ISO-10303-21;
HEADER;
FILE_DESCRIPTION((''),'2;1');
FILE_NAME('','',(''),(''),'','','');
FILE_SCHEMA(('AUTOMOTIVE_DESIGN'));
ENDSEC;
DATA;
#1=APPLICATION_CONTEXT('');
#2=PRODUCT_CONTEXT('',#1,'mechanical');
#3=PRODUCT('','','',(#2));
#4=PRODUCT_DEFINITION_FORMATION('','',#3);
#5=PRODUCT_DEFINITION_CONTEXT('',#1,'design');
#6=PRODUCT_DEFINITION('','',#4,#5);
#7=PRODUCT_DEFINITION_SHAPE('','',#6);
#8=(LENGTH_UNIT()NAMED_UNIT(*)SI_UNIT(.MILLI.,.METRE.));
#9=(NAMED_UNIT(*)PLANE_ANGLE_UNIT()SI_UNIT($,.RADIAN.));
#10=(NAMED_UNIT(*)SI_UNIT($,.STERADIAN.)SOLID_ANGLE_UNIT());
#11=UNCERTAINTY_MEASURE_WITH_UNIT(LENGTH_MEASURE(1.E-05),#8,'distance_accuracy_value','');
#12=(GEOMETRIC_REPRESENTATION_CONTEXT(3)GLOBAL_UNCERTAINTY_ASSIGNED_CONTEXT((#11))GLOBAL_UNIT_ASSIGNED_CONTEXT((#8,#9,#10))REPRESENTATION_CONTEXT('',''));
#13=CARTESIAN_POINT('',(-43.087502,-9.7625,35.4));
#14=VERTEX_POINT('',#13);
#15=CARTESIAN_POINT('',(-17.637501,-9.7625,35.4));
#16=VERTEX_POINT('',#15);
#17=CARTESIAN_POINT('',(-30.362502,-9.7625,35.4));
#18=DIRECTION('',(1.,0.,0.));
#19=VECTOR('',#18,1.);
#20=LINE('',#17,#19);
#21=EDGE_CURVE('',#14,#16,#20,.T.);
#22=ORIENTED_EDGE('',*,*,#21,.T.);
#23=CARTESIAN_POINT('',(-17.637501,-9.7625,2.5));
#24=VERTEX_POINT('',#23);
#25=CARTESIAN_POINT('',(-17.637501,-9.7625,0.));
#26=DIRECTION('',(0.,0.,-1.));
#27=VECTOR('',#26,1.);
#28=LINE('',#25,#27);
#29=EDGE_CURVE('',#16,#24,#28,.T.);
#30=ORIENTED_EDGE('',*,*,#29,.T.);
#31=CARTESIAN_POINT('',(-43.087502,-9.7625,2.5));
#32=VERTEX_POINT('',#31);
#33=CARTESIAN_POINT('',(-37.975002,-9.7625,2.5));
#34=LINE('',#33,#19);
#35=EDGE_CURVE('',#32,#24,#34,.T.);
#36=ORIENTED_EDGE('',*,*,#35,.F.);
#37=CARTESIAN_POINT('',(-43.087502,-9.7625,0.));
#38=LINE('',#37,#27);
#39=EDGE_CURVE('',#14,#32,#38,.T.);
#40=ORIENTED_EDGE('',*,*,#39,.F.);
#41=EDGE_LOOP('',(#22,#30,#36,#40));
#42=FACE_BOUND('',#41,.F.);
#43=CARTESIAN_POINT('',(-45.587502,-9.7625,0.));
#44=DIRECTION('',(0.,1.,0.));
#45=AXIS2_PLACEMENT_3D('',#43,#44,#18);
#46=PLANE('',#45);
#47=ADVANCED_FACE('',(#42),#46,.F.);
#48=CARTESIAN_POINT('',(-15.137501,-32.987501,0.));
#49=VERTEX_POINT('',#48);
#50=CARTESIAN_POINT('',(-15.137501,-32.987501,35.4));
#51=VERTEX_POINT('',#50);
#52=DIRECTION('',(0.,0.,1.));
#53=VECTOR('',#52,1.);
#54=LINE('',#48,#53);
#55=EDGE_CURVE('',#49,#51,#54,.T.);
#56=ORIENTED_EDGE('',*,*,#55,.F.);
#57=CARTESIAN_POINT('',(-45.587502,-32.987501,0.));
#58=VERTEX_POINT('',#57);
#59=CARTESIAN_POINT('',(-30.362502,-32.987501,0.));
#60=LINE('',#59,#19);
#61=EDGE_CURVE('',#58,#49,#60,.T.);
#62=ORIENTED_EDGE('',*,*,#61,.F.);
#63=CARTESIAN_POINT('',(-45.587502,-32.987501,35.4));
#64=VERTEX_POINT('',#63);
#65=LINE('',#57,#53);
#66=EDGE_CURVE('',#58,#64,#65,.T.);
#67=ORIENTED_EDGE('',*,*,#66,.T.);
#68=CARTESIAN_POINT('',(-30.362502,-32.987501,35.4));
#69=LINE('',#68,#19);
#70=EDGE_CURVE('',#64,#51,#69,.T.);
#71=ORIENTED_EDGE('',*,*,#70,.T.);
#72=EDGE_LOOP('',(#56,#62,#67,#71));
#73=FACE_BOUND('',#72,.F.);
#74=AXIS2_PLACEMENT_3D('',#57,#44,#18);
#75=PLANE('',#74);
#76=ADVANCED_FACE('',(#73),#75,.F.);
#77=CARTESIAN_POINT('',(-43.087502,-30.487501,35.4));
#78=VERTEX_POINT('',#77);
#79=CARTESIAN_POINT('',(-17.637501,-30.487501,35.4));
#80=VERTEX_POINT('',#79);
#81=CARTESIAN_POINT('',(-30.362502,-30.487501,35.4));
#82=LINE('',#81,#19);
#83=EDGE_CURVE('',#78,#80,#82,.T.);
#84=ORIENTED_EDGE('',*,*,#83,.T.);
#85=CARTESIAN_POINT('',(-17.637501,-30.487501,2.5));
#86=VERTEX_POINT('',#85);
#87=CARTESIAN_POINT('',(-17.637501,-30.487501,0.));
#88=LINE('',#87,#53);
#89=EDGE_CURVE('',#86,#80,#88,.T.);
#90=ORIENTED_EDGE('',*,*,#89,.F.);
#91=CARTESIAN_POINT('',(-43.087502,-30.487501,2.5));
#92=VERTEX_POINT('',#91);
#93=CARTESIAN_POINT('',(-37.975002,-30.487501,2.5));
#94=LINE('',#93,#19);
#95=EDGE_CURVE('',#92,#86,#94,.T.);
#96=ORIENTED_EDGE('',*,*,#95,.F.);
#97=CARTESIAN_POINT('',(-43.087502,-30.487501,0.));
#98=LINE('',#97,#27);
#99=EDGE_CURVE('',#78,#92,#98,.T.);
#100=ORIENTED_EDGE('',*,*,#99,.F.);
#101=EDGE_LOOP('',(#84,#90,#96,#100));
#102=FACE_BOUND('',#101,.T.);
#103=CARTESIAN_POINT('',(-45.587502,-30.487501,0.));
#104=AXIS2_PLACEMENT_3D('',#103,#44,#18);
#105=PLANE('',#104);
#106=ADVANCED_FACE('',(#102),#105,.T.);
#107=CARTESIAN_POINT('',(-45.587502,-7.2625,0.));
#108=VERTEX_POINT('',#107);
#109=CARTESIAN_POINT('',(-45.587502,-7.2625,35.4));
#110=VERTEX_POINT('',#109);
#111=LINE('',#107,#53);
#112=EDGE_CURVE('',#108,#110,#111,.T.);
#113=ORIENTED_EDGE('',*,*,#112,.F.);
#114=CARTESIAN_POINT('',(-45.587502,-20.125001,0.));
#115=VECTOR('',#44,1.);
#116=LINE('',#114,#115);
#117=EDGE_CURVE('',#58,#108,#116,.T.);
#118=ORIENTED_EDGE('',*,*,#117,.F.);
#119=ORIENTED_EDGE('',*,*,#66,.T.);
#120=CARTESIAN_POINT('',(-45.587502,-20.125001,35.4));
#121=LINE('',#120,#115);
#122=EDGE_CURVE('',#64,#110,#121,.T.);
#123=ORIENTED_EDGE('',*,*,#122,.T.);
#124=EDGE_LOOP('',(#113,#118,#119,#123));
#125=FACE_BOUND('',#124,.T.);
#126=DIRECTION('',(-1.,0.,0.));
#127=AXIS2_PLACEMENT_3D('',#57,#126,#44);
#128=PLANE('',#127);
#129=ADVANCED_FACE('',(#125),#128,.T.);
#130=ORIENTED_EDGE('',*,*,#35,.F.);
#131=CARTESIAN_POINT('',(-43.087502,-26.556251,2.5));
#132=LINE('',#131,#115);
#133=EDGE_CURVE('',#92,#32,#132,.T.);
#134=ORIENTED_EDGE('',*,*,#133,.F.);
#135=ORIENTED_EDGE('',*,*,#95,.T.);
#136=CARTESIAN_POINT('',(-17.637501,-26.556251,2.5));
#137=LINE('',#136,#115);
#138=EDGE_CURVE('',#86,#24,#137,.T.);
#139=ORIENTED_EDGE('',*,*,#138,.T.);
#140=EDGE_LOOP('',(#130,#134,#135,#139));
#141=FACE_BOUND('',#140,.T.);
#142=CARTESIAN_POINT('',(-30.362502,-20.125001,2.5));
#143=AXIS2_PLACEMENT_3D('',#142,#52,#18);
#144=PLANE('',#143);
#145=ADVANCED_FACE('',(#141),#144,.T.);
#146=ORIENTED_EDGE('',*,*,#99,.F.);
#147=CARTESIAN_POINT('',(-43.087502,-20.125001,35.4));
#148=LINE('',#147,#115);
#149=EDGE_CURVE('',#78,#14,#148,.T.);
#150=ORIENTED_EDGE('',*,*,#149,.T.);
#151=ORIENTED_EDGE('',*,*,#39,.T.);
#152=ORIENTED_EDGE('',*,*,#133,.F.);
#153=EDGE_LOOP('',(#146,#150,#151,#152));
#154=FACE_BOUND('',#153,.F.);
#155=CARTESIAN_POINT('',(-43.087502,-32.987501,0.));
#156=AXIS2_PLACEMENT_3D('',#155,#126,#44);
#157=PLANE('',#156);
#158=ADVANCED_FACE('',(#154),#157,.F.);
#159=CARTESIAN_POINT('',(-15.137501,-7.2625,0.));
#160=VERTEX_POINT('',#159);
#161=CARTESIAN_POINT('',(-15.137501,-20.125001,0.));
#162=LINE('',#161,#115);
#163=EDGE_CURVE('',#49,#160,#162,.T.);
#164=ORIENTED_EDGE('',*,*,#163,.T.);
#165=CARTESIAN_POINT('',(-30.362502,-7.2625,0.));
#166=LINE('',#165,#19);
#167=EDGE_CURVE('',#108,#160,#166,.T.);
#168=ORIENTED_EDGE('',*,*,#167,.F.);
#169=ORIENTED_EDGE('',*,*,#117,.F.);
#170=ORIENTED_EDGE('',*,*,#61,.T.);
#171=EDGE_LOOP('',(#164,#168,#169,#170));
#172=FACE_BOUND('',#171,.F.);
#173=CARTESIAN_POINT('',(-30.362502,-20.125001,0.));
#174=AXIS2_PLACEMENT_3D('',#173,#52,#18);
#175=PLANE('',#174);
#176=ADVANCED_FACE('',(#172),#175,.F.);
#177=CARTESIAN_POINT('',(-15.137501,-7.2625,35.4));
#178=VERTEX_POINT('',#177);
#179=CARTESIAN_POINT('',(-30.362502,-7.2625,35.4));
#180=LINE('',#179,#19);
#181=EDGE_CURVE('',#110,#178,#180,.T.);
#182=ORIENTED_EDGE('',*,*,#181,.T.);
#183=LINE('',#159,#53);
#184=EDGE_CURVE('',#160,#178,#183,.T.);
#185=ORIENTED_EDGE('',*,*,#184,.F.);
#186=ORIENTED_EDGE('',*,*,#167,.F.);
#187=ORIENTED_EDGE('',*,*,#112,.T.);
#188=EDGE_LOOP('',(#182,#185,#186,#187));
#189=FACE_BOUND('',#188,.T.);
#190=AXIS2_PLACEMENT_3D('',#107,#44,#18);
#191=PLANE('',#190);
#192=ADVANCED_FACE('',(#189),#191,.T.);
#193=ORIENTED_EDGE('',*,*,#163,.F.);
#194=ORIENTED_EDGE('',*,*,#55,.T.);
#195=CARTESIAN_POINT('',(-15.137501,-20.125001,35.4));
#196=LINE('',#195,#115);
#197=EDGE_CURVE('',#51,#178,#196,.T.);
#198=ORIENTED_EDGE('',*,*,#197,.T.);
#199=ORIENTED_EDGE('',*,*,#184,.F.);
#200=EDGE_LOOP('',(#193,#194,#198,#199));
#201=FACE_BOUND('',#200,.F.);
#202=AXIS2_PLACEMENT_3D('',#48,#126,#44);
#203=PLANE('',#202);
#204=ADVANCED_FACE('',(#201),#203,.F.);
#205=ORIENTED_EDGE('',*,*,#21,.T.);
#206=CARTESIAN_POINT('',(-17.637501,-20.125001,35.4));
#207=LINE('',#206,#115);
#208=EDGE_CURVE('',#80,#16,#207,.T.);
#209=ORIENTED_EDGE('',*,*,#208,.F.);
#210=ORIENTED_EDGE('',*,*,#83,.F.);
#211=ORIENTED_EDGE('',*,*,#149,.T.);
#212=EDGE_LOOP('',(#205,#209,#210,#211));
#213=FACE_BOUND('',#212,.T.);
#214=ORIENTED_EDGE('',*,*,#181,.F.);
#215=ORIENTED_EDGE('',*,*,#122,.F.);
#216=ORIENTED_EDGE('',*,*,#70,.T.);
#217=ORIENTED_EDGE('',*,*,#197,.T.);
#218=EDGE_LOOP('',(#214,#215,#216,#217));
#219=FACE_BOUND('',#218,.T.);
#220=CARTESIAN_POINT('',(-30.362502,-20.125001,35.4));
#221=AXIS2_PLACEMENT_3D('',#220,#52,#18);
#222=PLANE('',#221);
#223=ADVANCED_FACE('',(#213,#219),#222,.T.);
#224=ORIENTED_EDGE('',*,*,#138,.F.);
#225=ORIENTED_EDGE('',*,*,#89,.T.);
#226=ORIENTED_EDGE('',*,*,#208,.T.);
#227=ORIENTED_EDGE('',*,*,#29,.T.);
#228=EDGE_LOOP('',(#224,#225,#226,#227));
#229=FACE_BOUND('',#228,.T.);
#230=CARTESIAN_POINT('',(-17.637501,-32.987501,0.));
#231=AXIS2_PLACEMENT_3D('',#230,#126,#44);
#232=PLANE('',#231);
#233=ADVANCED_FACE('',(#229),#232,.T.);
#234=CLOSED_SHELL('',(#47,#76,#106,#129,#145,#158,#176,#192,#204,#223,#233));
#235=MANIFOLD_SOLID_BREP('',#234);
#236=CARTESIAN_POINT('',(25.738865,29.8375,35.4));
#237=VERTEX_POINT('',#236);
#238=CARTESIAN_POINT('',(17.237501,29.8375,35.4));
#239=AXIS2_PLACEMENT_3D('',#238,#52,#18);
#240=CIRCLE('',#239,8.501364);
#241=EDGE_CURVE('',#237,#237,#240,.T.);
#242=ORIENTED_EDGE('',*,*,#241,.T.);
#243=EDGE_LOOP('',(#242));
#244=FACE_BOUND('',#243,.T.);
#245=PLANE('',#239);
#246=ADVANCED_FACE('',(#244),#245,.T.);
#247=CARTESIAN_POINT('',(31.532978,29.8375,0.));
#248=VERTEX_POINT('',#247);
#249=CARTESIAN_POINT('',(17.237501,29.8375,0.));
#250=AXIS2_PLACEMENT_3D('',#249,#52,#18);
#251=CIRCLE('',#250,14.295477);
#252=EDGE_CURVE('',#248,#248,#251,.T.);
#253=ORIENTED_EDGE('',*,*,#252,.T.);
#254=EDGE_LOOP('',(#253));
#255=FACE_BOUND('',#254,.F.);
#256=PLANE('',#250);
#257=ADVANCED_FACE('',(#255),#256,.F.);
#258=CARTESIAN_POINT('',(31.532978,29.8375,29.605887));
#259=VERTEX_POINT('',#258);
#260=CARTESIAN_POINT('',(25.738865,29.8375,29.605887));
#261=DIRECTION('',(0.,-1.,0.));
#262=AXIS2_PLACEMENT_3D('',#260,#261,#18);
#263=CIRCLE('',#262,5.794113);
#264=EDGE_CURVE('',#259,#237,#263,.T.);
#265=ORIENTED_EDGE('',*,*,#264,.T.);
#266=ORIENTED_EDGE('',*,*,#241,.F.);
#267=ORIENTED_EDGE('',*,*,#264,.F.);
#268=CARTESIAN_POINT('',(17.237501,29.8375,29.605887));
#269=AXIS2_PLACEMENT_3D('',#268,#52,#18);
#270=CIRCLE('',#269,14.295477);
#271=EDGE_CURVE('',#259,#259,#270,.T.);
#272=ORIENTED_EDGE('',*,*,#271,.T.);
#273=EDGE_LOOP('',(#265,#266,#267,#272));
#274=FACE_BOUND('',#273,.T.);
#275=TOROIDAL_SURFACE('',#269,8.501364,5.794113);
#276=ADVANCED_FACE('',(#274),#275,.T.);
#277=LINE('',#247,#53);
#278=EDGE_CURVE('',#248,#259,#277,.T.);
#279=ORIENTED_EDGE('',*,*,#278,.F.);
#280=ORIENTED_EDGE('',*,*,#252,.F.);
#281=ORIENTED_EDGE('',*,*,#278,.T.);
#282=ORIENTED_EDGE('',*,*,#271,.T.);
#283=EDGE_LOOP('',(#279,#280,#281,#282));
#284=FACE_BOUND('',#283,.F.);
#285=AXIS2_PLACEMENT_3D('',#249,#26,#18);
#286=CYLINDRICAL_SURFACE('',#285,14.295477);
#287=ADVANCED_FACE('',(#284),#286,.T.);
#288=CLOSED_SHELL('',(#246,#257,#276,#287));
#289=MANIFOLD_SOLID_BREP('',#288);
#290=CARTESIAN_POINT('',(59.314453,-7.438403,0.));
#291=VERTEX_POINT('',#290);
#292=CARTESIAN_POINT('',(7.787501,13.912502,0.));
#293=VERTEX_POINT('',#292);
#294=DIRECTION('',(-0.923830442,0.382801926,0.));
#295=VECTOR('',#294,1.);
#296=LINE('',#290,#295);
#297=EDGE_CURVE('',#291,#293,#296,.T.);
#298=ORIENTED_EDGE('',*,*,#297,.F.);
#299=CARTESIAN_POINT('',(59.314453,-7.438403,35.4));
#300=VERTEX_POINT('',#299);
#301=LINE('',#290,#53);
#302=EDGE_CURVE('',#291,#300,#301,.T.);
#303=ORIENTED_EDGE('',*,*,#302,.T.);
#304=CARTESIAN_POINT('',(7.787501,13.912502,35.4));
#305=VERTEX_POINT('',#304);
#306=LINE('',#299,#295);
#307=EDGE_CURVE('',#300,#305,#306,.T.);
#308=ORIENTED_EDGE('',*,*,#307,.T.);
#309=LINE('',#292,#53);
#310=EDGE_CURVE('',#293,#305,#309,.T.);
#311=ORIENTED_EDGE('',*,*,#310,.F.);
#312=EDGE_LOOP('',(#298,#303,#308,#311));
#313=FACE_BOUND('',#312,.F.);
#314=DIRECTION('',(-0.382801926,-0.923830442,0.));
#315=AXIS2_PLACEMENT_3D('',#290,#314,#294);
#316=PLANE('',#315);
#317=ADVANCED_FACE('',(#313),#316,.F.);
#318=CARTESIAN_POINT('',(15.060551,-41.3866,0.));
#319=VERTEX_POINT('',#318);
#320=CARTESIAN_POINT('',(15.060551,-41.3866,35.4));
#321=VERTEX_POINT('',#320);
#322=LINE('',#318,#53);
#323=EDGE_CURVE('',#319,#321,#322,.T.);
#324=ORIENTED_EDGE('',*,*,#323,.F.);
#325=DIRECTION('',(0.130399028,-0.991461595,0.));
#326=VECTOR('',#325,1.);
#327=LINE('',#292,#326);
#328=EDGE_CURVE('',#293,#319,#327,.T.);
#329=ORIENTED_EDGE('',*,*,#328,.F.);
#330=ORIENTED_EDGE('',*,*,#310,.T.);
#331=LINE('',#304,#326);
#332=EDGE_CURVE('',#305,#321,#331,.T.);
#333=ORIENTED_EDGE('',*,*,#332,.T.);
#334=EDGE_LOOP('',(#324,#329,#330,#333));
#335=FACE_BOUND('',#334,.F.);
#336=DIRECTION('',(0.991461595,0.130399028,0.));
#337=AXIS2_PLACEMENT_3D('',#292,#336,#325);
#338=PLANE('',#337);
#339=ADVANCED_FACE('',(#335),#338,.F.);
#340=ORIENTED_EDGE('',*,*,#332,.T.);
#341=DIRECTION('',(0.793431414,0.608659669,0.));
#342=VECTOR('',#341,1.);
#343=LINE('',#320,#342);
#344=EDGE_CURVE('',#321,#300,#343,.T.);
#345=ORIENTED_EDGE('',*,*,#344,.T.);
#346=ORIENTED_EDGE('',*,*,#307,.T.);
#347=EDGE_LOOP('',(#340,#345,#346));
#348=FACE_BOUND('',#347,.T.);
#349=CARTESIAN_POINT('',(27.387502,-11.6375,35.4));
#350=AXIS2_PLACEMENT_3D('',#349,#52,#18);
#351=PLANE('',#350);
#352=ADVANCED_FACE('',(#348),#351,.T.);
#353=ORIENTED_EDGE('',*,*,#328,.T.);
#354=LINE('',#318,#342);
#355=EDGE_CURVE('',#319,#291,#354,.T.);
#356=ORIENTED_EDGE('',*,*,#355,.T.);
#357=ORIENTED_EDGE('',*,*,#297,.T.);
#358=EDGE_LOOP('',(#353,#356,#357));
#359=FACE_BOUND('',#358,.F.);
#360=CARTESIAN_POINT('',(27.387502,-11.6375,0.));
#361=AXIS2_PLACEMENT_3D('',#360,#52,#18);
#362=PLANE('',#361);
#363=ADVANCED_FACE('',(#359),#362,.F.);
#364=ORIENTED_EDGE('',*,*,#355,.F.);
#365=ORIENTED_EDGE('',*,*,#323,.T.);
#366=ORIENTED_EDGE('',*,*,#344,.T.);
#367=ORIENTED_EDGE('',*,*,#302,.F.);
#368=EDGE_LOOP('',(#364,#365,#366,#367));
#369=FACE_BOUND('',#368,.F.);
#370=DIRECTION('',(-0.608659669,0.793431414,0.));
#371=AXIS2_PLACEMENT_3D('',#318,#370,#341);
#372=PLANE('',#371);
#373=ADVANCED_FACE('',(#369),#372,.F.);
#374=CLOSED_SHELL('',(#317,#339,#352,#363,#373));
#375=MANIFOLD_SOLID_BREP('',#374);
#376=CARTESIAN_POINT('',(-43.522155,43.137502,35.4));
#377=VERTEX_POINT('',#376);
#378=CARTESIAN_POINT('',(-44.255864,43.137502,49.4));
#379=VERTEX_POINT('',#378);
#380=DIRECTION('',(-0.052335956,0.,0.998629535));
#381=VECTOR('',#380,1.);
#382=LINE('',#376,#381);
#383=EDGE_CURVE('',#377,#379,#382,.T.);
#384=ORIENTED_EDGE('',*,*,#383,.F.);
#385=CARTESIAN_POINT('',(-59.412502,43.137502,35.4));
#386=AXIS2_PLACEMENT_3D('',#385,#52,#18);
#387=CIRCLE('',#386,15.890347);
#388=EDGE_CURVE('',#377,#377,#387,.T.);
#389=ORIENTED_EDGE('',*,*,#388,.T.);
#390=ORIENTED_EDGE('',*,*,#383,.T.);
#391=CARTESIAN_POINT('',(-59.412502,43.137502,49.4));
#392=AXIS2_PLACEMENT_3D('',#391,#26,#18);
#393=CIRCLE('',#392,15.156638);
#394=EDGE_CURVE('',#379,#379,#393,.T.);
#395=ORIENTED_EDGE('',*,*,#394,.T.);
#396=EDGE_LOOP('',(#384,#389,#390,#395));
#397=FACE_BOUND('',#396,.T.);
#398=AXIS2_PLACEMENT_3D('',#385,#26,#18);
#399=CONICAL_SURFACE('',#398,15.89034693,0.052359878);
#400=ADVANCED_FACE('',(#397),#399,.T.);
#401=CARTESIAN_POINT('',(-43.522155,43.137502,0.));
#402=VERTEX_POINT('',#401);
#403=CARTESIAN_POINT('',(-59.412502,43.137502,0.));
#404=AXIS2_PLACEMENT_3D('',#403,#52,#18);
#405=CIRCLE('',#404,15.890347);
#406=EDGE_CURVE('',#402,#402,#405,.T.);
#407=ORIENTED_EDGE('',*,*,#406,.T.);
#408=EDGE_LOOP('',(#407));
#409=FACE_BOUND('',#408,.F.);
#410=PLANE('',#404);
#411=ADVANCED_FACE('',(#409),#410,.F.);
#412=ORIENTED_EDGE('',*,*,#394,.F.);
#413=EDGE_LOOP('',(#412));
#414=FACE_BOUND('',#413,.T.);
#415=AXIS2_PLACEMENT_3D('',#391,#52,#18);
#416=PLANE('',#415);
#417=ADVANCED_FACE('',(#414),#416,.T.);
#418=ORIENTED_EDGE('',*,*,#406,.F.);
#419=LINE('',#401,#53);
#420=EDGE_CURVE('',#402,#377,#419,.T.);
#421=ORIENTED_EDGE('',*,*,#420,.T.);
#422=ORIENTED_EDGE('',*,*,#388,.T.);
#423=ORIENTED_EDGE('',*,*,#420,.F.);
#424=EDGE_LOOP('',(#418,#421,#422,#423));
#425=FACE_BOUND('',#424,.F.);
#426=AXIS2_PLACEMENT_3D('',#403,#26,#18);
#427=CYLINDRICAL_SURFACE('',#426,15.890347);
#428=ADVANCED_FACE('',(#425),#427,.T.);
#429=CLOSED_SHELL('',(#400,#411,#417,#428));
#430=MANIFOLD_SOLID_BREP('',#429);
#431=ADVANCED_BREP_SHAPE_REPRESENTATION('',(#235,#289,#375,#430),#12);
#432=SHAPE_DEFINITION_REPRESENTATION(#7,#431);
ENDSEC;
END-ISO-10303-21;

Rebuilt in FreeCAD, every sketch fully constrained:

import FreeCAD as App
import Part
import Sketcher
from FreeCAD import Vector


def edges_at(feature, points):
    """Names of the edges that pass closest to the given points."""
    edges = feature.Shape.Edges
    near = lambda p: min(range(len(edges)), key=lambda i: edges[i].distToShape(Part.Vertex(*p))[0])
    return sorted({f"Edge{near(p) + 1}" for p in points})


def faces_at(feature, points):
    """Names of the faces that lie closest to the given points."""
    faces = feature.Shape.Faces
    near = lambda p: min(range(len(faces)), key=lambda i: faces[i].distToShape(Part.Vertex(*p))[0])
    return sorted({f"Face{near(p) + 1}" for p in points})


def add_polygon(sketch, points):
    """Adds a closed chain of lines whose ends are joined by coincident constraints."""
    first, n = sketch.GeometryCount, len(points)
    for a, b in zip(points, points[1:] + points[:1]):
        sketch.addGeometry(Part.LineSegment(App.Vector(*a, 0), App.Vector(*b, 0)), False)
    for i in range(n):
        sketch.addConstraint(Sketcher.Constraint("Coincident", first + i, 2, first + (i + 1) % n, 1))

doc = App.newDocument("Part")
params = doc.addObject("Spreadsheet::Sheet", "Params")
for row, (alias, value) in enumerate([
    ("pad1_length", "35.4 mm"),
    ("pad2_length", "14 mm"),
    ("pad2_taper", "-3 deg"),
    ("pad3_length", "35.4 mm"),
    ("fillet_radius", "5.794113 mm"),
    ("sketch4_width", "30.450001 mm"),
    ("pad4_length", "35.4 mm"),
    ("thickness_wall", "2.5 mm"),
    ("pad5_length", "35.4 mm"),
], start=1):
    params.set(f"A{row}", alias)
    params.set(f"B{row}", "=" + value)
    params.setAlias(f"B{row}", alias)

body = doc.addObject("PartDesign::Body", "Body")

# Sketch on XY plane
sketch1 = body.newObject("Sketcher::SketchObject", "Sketch")
sketch1.AttachmentSupport = (doc.getObject("XY_Plane"), [""])
sketch1.MapMode = "FlatFace"
sketch1.addGeometry(Part.Circle(Vector(-59.412502, 43.137502, 0), Vector(0, 0, 1), 15.890347), False)
sketch1.addConstraint([
    Sketcher.Constraint("Diameter", 0, 31.780694),
    Sketcher.Constraint("DistanceX", 0, 3, -1, 1, 59.412502),
    Sketcher.Constraint("DistanceY", -1, 1, 0, 3, 43.137502),
])
pad1 = body.newObject("PartDesign::Pad", "Pad")
pad1.Profile = sketch1
pad1.setExpression("Length", "Params.pad1_length")

# Sketch on XY plane
sketch2 = body.newObject("Sketcher::SketchObject", "Sketch001")
sketch2.AttachmentSupport = (doc.getObject("XY_Plane"), [""])
sketch2.MapMode = "FlatFace"
sketch2.AttachmentOffset = App.Placement(Vector(0, 0, 35.4), App.Rotation())
sketch2.addGeometry(Part.Circle(Vector(-59.412502, 43.137502, 0), Vector(0, 0, 1), 15.890347), False)
sketch2.addConstraint([
    Sketcher.Constraint("Diameter", 0, 31.780694),
    Sketcher.Constraint("DistanceX", 0, 3, -1, 1, 59.412502),
    Sketcher.Constraint("DistanceY", -1, 1, 0, 3, 43.137502),
])
pad2 = body.newObject("PartDesign::Pad", "Pad001")
pad2.Profile = sketch2
pad2.setExpression("Length", "Params.pad2_length")
pad2.setExpression("TaperAngle", "Params.pad2_taper")
body2 = doc.addObject("PartDesign::Body", "Body001")

# Sketch on XY plane
sketch3 = body2.newObject("Sketcher::SketchObject", "Sketch002")
sketch3.AttachmentSupport = (doc.getObject("XY_Plane001"), [""])
sketch3.MapMode = "FlatFace"
sketch3.addGeometry(Part.Circle(Vector(17.237501, 29.8375, 0), Vector(0, 0, 1), 14.295477), False)
sketch3.addConstraint([
    Sketcher.Constraint("Diameter", 0, 28.590954),
    Sketcher.Constraint("DistanceX", -1, 1, 0, 3, 17.237501),
    Sketcher.Constraint("DistanceY", -1, 1, 0, 3, 29.8375),
])
pad3 = body2.newObject("PartDesign::Pad", "Pad002")
pad3.Profile = sketch3
pad3.setExpression("Length", "Params.pad3_length")
doc.recompute()

fillet = body2.newObject("PartDesign::Fillet", "Fillet")
fillet.Base = (pad3, edges_at(pad3, [(2.942, 29.838, 35.4)]))
fillet.setExpression("Radius", "Params.fillet_radius")
body3 = doc.addObject("PartDesign::Body", "Body002")

# Sketch on XY plane
sketch4 = body3.newObject("Sketcher::SketchObject", "Sketch003")
sketch4.AttachmentSupport = (doc.getObject("XY_Plane002"), [""])
sketch4.MapMode = "FlatFace"
add_polygon(sketch4, [(-45.587502, -7.2625), (-45.587502, -32.987501), (-15.137501, -32.987501), (-15.137501, -7.2625)])  # lines 0-3
sketch4.addConstraint([
    Sketcher.Constraint("Vertical", 0),
    Sketcher.Constraint("Horizontal", 1),
    Sketcher.Constraint("Vertical", 2),
    Sketcher.Constraint("Horizontal", 3),
    Sketcher.Constraint("DistanceX", 1, 1, 1, 2, 30.450001),
    Sketcher.Constraint("DistanceY", 0, 2, 0, 1, 25.725001),
    Sketcher.Constraint("DistanceY", 0, 2, -1, 1, 32.987501),
    Sketcher.Constraint("DistanceX", 1, 2, -1, 1, 15.137501),
])
sketch4.setExpression("Constraints[8]", "Params.sketch4_width")
pad4 = body3.newObject("PartDesign::Pad", "Pad003")
pad4.Profile = sketch4
pad4.setExpression("Length", "Params.pad4_length")
doc.recompute()

thickness = body3.newObject("PartDesign::Thickness", "Thickness")
thickness.Base = (pad4, faces_at(pad4, [(-30.363, -20.125, 35.4)]))
thickness.setExpression("Value", "Params.thickness_wall")
thickness.Reversed = True
thickness.Join = "Arc"
body4 = doc.addObject("PartDesign::Body", "Body003")

# Sketch on XY plane
sketch5 = body4.newObject("Sketcher::SketchObject", "Sketch004")
sketch5.AttachmentSupport = (doc.getObject("XY_Plane003"), [""])
sketch5.MapMode = "FlatFace"
add_polygon(sketch5, [(15.060551, -41.3866), (59.314453, -7.438403), (7.787501, 13.912502)])  # lines 0-2
sketch5.addConstraint([
    Sketcher.Constraint("Equal", 0, 1),
    Sketcher.Constraint("Equal", 1, 2),
    Sketcher.Constraint("DistanceX", -1, 1, 1, 2, 7.787501),
    Sketcher.Constraint("DistanceY", -1, 1, 1, 2, 13.912502),
    Sketcher.Constraint("DistanceY", 2, 2, -1, 1, 41.3866),
    Sketcher.Constraint("DistanceX", 2, 2, 0, 2, 44.253902),
])
pad5 = body4.newObject("PartDesign::Pad", "Pad004")
pad5.Profile = sketch5
pad5.setExpression("Length", "Params.pad5_length")

doc.recompute()
